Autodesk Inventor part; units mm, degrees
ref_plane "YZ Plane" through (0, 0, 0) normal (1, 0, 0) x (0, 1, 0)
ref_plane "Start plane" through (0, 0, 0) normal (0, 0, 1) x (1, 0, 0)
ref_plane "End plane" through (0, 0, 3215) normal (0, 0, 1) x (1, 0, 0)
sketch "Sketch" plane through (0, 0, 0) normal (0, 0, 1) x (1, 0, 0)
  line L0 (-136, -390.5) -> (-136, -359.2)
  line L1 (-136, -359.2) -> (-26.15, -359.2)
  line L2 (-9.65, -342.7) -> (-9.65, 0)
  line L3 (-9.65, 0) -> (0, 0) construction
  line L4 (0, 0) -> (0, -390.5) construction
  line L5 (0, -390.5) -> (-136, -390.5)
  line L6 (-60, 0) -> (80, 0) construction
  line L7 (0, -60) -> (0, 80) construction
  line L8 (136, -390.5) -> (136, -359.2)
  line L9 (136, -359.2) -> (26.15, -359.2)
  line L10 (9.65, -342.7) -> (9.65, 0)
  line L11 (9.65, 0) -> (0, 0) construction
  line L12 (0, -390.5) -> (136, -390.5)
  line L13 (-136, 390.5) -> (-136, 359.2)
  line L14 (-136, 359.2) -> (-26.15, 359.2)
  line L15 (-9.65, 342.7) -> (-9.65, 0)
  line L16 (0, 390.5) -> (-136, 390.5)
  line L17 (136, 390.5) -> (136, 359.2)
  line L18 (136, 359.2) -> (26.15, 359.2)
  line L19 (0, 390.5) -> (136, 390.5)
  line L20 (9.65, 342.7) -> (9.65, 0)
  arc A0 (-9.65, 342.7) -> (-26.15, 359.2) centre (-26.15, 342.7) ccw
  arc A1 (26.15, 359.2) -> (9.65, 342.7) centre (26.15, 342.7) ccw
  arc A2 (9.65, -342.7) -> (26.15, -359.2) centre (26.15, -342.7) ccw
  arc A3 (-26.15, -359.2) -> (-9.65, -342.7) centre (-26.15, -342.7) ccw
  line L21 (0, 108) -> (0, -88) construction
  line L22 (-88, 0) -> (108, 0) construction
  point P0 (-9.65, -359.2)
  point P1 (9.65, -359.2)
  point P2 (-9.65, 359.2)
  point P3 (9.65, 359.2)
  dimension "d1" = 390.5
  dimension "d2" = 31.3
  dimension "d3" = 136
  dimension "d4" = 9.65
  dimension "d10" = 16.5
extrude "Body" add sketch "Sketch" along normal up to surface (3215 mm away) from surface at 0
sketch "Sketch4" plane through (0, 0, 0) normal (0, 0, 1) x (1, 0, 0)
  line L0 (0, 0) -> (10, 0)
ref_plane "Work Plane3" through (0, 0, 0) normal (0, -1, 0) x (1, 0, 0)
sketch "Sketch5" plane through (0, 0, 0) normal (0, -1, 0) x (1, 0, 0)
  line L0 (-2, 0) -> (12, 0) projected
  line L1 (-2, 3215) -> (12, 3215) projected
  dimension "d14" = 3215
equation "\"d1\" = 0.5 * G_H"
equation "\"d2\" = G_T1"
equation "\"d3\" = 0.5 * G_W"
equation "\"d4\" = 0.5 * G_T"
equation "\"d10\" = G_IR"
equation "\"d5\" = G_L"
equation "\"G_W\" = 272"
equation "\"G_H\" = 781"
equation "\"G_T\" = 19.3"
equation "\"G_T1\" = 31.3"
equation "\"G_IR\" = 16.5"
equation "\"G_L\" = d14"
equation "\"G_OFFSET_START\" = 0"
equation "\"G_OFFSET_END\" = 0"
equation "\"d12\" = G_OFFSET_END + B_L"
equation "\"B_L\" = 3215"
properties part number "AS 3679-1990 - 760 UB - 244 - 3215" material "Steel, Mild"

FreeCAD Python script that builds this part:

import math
import FreeCAD as App
import Part
import Sketcher

V = App.Vector
Q = App.Units.Quantity

doc = App.newDocument("Part")
body = doc.addObject("PartDesign::Body", "Body")

# Sketch on XY plane
sketch1 = body.newObject("Sketcher::SketchObject", "Sketch")
sketch1.AttachmentSupport = (doc.getObject("XY_Plane"), [""])
sketch1.MapMode = "FlatFace"
sketch1.addGeometry(Part.LineSegment(V(-136, -359, 0), V(-136, -390, 0)), False)
sketch1.addGeometry(Part.LineSegment(V(-136, -390, 0), V(136, -390, 0)), False)
sketch1.addGeometry(Part.LineSegment(V(136, -390, 0), V(136, -359, 0)), False)
sketch1.addGeometry(Part.LineSegment(V(136, -359, 0), V(26, -359, 0)), False)
sketch1.addGeometry(Part.ArcOfCircle(Part.Circle(V(26, -343, 0), V(0, 0, 1), 16), math.radians(180), math.radians(270)), False)
sketch1.addGeometry(Part.LineSegment(V(10, -343, 0), V(10, 343, 0)), False)
sketch1.addGeometry(Part.ArcOfCircle(Part.Circle(V(26, 343, 0), V(0, 0, 1), 16), math.radians(90), math.radians(180)), False)
sketch1.addGeometry(Part.LineSegment(V(26, 359, 0), V(136, 359, 0)), False)
sketch1.addGeometry(Part.LineSegment(V(136, 359, 0), V(136, 390, 0)), False)
sketch1.addGeometry(Part.LineSegment(V(136, 390, 0), V(-136, 390, 0)), False)
sketch1.addGeometry(Part.LineSegment(V(-136, 390, 0), V(-136, 359, 0)), False)
sketch1.addGeometry(Part.LineSegment(V(-136, 359, 0), V(-26, 359, 0)), False)
sketch1.addGeometry(Part.ArcOfCircle(Part.Circle(V(-26, 343, 0), V(0, 0, 1), 16), math.radians(0), math.radians(90)), False)
sketch1.addGeometry(Part.LineSegment(V(-10, 343, 0), V(-10, -343, 0)), False)
sketch1.addGeometry(Part.ArcOfCircle(Part.Circle(V(-26, -343, 0), V(0, 0, 1), 16), math.radians(-90), math.radians(0)), False)
sketch1.addGeometry(Part.LineSegment(V(-26, -359, 0), V(-136, -359, 0)), False)
sketch1.addConstraint(Sketcher.Constraint("Coincident", 0, 2, 1, 1))
sketch1.addConstraint(Sketcher.Constraint("Coincident", 1, 2, 2, 1))
sketch1.addConstraint(Sketcher.Constraint("Coincident", 2, 2, 3, 1))
sketch1.addConstraint(Sketcher.Constraint("Tangent", 3, 2, 4, 2))
sketch1.addConstraint(Sketcher.Constraint("Tangent", 4, 1, 5, 1))
sketch1.addConstraint(Sketcher.Constraint("Tangent", 5, 2, 6, 2))
sketch1.addConstraint(Sketcher.Constraint("Tangent", 6, 1, 7, 1))
sketch1.addConstraint(Sketcher.Constraint("Coincident", 7, 2, 8, 1))
sketch1.addConstraint(Sketcher.Constraint("Coincident", 8, 2, 9, 1))
sketch1.addConstraint(Sketcher.Constraint("Coincident", 9, 2, 10, 1))
sketch1.addConstraint(Sketcher.Constraint("Coincident", 10, 2, 11, 1))
sketch1.addConstraint(Sketcher.Constraint("Tangent", 11, 2, 12, 2))
sketch1.addConstraint(Sketcher.Constraint("Tangent", 12, 1, 13, 1))
sketch1.addConstraint(Sketcher.Constraint("Tangent", 13, 2, 14, 2))
sketch1.addConstraint(Sketcher.Constraint("Tangent", 14, 1, 15, 1))
sketch1.addConstraint(Sketcher.Constraint("Coincident", 15, 2, 0, 1))
sketch1.addConstraint(Sketcher.Constraint("Vertical", 0))
sketch1.addConstraint(Sketcher.Constraint("Horizontal", 1))
sketch1.addConstraint(Sketcher.Constraint("Vertical", 2))
sketch1.addConstraint(Sketcher.Constraint("Horizontal", 3))
sketch1.addConstraint(Sketcher.Constraint("Vertical", 5))
sketch1.addConstraint(Sketcher.Constraint("Horizontal", 7))
sketch1.addConstraint(Sketcher.Constraint("Vertical", 8))
sketch1.addConstraint(Sketcher.Constraint("Horizontal", 9))
sketch1.addConstraint(Sketcher.Constraint("Vertical", 10))
sketch1.addConstraint(Sketcher.Constraint("Horizontal", 11))
sketch1.addConstraint(Sketcher.Constraint("Vertical", 13))
sketch1.addConstraint(Sketcher.Constraint("Horizontal", 15))
sketch1.addConstraint(Sketcher.Constraint("Equal", 4, 6))
sketch1.addConstraint(Sketcher.Constraint("Equal", 6, 12))
sketch1.addConstraint(Sketcher.Constraint("Equal", 12, 14))
sketch1.addConstraint(Sketcher.Constraint("Symmetric", 4, 3, 12, 3, -1, 1))
sketch1.addConstraint(Sketcher.Constraint("Symmetric", 0, 2, 8, 2, -1, 1))
sketch1.addConstraint(Sketcher.Constraint("Symmetric", 7, 2, 10, 2, -2))
sketch1.addConstraint(Sketcher.Constraint("Symmetric", 2, 2, 15, 2, -2))
sketch1.addConstraint(Sketcher.Constraint("Radius", 4, Q("16.5 mm")))
sketch1.addConstraint(Sketcher.Constraint("DistanceY", 0, 2, 0, 1, Q("31.3 mm")))
sketch1.addConstraint(Sketcher.Constraint("DistanceX", 0, 2, -1, 1, Q("136 mm")))
sketch1.addConstraint(Sketcher.Constraint("DistanceY", 0, 2, -1, 1, Q("390.5 mm")))
sketch1.addConstraint(Sketcher.Constraint("DistanceX", -1, 1, 4, 1, Q("9.65 mm")))
pad1 = body.newObject("PartDesign::Pad", "Pad")
pad1.Profile = sketch1
pad1.Length = 3215

doc.recompute()
